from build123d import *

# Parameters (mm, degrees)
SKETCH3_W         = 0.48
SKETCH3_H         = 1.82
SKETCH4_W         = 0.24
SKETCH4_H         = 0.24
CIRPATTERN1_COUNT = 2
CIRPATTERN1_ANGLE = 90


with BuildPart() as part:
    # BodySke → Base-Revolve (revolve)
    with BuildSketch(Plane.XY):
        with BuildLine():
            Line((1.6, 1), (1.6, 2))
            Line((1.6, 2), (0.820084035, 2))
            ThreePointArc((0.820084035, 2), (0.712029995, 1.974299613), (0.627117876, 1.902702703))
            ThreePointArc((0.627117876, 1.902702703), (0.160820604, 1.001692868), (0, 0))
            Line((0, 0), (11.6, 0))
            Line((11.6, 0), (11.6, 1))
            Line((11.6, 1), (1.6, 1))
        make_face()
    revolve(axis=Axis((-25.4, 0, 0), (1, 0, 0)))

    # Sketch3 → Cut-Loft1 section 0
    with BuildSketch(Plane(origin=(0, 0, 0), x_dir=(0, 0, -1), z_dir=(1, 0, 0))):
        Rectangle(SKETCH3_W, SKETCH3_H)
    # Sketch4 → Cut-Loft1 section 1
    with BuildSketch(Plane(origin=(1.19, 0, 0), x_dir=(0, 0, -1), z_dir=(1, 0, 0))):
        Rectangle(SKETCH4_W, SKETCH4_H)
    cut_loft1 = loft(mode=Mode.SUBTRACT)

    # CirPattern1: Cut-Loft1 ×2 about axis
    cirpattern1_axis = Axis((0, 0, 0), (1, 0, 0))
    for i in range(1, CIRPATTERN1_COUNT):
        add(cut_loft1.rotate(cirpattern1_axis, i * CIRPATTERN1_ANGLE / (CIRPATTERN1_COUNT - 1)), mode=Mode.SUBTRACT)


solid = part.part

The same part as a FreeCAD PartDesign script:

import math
import FreeCAD as App
import Part
import Sketcher
from FreeCAD import Vector
Q = App.Units.Quantity

doc = App.newDocument("Part")
body = doc.addObject("PartDesign::Body", "Body")

# Sketch on XY plane
sketch1 = body.newObject("Sketcher::SketchObject", "Sketch")
sketch1.AttachmentSupport = (doc.getObject("XY_Plane"), [""])
sketch1.MapMode = "FlatFace"
sketch1.addGeometry([
    Part.LineSegment(Vector(1.6, 1, 0), Vector(1.6, 2, 0)),  # 0
    Part.LineSegment(Vector(1.6, 2, 0), Vector(0.82, 2, 0)),  # 1
    Part.ArcOfCircle(Part.Circle(Vector(0.82, 1.76, 0), Vector(0, 0, 1), 0.24), math.radians(90), math.radians(144)),  # 2
    Part.ArcOfCircle(Part.Circle(Vector(3.2, 0, 0), Vector(0, 0, 1), 3.2), math.radians(144), math.radians(180)),  # 3
    Part.LineSegment(Vector(0, 0, 0), Vector(11.6, 0, 0)),  # 4
    Part.LineSegment(Vector(11.6, 0, 0), Vector(11.6, 1, 0)),  # 5
    Part.LineSegment(Vector(11.6, 1, 0), Vector(1.6, 1, 0)),  # 6
], False)
sketch1.addConstraint([
    Sketcher.Constraint("Coincident", 0, 2, 1, 1),
    Sketcher.Constraint("Tangent", 1, 2, 2, 1),
    Sketcher.Constraint("Tangent", 2, 2, 3, 1),
    Sketcher.Constraint("Coincident", 3, 2, 4, 1),
    Sketcher.Constraint("Coincident", 4, 2, 5, 1),
    Sketcher.Constraint("Coincident", 5, 2, 6, 1),
    Sketcher.Constraint("Coincident", 6, 2, 0, 1),
    Sketcher.Constraint("Vertical", 0),
    Sketcher.Constraint("Horizontal", 1),
    Sketcher.Constraint("Horizontal", 4),
    Sketcher.Constraint("Vertical", 5),
    Sketcher.Constraint("Horizontal", 6),
    Sketcher.Constraint("Coincident", 3, 2, -1, 1),
    Sketcher.Constraint("PointOnObject", 3, 3, -1),
    Sketcher.Constraint("Equal", 0, 5),
    Sketcher.Constraint("Radius", 3, Q("3.2 mm")),
    Sketcher.Constraint("DistanceX", 6, 2, 6, 1, Q("10 mm")),
    Sketcher.Constraint("DistanceY", 0, 1, 0, 2, Q("1 mm")),
    Sketcher.Constraint("Radius", 2, Q("0.24 mm")),
    Sketcher.Constraint("DistanceX", 4, 1, 4, 2, Q("11.6 mm")),
])
revolution = body.newObject("PartDesign::Revolution", "Revolution")
revolution.Profile = sketch1
revolution.ReferenceAxis = (sketch1, ["H_Axis"])
revolution.Angle = 360

# Sketch on YZ plane
sketch2 = body.newObject("Sketcher::SketchObject", "Sketch001")
sketch2.AttachmentSupport = (doc.getObject("YZ_Plane"), [""])
sketch2.MapMode = "FlatFace"
sketch2.addGeometry([
    Part.LineSegment(Vector(0.91, 0.24, 0), Vector(-0.91, 0.24, 0)),
    Part.LineSegment(Vector(-0.91, 0.24, 0), Vector(-0.91, -0.24, 0)),
    Part.LineSegment(Vector(-0.91, -0.24, 0), Vector(0.91, -0.24, 0)),
    Part.LineSegment(Vector(0.91, -0.24, 0), Vector(0.91, 0.24, 0)),
], False)
sketch2.addConstraint([
    Sketcher.Constraint("Coincident", 0, 2, 1, 1),
    Sketcher.Constraint("Coincident", 1, 2, 2, 1),
    Sketcher.Constraint("Coincident", 2, 2, 3, 1),
    Sketcher.Constraint("Coincident", 3, 2, 0, 1),
    Sketcher.Constraint("Horizontal", 0),
    Sketcher.Constraint("Vertical", 1),
    Sketcher.Constraint("Horizontal", 2),
    Sketcher.Constraint("Vertical", 3),
    Sketcher.Constraint("Symmetric", 0, 2, 2, 2, -1, 1),
    Sketcher.Constraint("DistanceX", 0, 2, 0, 1, Q("1.82 mm")),
    Sketcher.Constraint("DistanceY", 1, 2, 1, 1, Q("0.48 mm")),
])

# Sketch on YZ plane
sketch3 = body.newObject("Sketcher::SketchObject", "Sketch002")
sketch3.AttachmentSupport = (doc.getObject("YZ_Plane"), [""])
sketch3.MapMode = "FlatFace"
sketch3.AttachmentOffset = App.Placement(Vector(0, 0, 1.19), App.Rotation())
sketch3.addGeometry([
    Part.LineSegment(Vector(0.12, 0.12, 0), Vector(-0.12, 0.12, 0)),
    Part.LineSegment(Vector(-0.12, 0.12, 0), Vector(-0.12, -0.12, 0)),
    Part.LineSegment(Vector(-0.12, -0.12, 0), Vector(0.12, -0.12, 0)),
    Part.LineSegment(Vector(0.12, -0.12, 0), Vector(0.12, 0.12, 0)),
], False)
sketch3.addConstraint([
    Sketcher.Constraint("Coincident", 0, 2, 1, 1),
    Sketcher.Constraint("Coincident", 1, 2, 2, 1),
    Sketcher.Constraint("Coincident", 2, 2, 3, 1),
    Sketcher.Constraint("Coincident", 3, 2, 0, 1),
    Sketcher.Constraint("Horizontal", 0),
    Sketcher.Constraint("Vertical", 1),
    Sketcher.Constraint("Horizontal", 2),
    Sketcher.Constraint("Vertical", 3),
    Sketcher.Constraint("Symmetric", 0, 2, 2, 2, -1, 1),
    Sketcher.Constraint("Equal", 2, 1),
    Sketcher.Constraint("DistanceX", 0, 2, 0, 1, Q("0.24 mm")),
])

subtractiveloft = body.newObject("PartDesign::SubtractiveLoft", "SubtractiveLoft")
subtractiveloft.Profile = sketch2
subtractiveloft.Sections = [sketch3]
doc.recompute()

polarpattern = body.newObject("PartDesign::PolarPattern", "PolarPattern")
polarpattern.Originals = [subtractiveloft]
polarpattern.Axis = (doc.getObject("X_Axis"), [""])
polarpattern.Angle = 90
polarpattern.Occurrences = 2
body.Tip = polarpattern

doc.recompute()
